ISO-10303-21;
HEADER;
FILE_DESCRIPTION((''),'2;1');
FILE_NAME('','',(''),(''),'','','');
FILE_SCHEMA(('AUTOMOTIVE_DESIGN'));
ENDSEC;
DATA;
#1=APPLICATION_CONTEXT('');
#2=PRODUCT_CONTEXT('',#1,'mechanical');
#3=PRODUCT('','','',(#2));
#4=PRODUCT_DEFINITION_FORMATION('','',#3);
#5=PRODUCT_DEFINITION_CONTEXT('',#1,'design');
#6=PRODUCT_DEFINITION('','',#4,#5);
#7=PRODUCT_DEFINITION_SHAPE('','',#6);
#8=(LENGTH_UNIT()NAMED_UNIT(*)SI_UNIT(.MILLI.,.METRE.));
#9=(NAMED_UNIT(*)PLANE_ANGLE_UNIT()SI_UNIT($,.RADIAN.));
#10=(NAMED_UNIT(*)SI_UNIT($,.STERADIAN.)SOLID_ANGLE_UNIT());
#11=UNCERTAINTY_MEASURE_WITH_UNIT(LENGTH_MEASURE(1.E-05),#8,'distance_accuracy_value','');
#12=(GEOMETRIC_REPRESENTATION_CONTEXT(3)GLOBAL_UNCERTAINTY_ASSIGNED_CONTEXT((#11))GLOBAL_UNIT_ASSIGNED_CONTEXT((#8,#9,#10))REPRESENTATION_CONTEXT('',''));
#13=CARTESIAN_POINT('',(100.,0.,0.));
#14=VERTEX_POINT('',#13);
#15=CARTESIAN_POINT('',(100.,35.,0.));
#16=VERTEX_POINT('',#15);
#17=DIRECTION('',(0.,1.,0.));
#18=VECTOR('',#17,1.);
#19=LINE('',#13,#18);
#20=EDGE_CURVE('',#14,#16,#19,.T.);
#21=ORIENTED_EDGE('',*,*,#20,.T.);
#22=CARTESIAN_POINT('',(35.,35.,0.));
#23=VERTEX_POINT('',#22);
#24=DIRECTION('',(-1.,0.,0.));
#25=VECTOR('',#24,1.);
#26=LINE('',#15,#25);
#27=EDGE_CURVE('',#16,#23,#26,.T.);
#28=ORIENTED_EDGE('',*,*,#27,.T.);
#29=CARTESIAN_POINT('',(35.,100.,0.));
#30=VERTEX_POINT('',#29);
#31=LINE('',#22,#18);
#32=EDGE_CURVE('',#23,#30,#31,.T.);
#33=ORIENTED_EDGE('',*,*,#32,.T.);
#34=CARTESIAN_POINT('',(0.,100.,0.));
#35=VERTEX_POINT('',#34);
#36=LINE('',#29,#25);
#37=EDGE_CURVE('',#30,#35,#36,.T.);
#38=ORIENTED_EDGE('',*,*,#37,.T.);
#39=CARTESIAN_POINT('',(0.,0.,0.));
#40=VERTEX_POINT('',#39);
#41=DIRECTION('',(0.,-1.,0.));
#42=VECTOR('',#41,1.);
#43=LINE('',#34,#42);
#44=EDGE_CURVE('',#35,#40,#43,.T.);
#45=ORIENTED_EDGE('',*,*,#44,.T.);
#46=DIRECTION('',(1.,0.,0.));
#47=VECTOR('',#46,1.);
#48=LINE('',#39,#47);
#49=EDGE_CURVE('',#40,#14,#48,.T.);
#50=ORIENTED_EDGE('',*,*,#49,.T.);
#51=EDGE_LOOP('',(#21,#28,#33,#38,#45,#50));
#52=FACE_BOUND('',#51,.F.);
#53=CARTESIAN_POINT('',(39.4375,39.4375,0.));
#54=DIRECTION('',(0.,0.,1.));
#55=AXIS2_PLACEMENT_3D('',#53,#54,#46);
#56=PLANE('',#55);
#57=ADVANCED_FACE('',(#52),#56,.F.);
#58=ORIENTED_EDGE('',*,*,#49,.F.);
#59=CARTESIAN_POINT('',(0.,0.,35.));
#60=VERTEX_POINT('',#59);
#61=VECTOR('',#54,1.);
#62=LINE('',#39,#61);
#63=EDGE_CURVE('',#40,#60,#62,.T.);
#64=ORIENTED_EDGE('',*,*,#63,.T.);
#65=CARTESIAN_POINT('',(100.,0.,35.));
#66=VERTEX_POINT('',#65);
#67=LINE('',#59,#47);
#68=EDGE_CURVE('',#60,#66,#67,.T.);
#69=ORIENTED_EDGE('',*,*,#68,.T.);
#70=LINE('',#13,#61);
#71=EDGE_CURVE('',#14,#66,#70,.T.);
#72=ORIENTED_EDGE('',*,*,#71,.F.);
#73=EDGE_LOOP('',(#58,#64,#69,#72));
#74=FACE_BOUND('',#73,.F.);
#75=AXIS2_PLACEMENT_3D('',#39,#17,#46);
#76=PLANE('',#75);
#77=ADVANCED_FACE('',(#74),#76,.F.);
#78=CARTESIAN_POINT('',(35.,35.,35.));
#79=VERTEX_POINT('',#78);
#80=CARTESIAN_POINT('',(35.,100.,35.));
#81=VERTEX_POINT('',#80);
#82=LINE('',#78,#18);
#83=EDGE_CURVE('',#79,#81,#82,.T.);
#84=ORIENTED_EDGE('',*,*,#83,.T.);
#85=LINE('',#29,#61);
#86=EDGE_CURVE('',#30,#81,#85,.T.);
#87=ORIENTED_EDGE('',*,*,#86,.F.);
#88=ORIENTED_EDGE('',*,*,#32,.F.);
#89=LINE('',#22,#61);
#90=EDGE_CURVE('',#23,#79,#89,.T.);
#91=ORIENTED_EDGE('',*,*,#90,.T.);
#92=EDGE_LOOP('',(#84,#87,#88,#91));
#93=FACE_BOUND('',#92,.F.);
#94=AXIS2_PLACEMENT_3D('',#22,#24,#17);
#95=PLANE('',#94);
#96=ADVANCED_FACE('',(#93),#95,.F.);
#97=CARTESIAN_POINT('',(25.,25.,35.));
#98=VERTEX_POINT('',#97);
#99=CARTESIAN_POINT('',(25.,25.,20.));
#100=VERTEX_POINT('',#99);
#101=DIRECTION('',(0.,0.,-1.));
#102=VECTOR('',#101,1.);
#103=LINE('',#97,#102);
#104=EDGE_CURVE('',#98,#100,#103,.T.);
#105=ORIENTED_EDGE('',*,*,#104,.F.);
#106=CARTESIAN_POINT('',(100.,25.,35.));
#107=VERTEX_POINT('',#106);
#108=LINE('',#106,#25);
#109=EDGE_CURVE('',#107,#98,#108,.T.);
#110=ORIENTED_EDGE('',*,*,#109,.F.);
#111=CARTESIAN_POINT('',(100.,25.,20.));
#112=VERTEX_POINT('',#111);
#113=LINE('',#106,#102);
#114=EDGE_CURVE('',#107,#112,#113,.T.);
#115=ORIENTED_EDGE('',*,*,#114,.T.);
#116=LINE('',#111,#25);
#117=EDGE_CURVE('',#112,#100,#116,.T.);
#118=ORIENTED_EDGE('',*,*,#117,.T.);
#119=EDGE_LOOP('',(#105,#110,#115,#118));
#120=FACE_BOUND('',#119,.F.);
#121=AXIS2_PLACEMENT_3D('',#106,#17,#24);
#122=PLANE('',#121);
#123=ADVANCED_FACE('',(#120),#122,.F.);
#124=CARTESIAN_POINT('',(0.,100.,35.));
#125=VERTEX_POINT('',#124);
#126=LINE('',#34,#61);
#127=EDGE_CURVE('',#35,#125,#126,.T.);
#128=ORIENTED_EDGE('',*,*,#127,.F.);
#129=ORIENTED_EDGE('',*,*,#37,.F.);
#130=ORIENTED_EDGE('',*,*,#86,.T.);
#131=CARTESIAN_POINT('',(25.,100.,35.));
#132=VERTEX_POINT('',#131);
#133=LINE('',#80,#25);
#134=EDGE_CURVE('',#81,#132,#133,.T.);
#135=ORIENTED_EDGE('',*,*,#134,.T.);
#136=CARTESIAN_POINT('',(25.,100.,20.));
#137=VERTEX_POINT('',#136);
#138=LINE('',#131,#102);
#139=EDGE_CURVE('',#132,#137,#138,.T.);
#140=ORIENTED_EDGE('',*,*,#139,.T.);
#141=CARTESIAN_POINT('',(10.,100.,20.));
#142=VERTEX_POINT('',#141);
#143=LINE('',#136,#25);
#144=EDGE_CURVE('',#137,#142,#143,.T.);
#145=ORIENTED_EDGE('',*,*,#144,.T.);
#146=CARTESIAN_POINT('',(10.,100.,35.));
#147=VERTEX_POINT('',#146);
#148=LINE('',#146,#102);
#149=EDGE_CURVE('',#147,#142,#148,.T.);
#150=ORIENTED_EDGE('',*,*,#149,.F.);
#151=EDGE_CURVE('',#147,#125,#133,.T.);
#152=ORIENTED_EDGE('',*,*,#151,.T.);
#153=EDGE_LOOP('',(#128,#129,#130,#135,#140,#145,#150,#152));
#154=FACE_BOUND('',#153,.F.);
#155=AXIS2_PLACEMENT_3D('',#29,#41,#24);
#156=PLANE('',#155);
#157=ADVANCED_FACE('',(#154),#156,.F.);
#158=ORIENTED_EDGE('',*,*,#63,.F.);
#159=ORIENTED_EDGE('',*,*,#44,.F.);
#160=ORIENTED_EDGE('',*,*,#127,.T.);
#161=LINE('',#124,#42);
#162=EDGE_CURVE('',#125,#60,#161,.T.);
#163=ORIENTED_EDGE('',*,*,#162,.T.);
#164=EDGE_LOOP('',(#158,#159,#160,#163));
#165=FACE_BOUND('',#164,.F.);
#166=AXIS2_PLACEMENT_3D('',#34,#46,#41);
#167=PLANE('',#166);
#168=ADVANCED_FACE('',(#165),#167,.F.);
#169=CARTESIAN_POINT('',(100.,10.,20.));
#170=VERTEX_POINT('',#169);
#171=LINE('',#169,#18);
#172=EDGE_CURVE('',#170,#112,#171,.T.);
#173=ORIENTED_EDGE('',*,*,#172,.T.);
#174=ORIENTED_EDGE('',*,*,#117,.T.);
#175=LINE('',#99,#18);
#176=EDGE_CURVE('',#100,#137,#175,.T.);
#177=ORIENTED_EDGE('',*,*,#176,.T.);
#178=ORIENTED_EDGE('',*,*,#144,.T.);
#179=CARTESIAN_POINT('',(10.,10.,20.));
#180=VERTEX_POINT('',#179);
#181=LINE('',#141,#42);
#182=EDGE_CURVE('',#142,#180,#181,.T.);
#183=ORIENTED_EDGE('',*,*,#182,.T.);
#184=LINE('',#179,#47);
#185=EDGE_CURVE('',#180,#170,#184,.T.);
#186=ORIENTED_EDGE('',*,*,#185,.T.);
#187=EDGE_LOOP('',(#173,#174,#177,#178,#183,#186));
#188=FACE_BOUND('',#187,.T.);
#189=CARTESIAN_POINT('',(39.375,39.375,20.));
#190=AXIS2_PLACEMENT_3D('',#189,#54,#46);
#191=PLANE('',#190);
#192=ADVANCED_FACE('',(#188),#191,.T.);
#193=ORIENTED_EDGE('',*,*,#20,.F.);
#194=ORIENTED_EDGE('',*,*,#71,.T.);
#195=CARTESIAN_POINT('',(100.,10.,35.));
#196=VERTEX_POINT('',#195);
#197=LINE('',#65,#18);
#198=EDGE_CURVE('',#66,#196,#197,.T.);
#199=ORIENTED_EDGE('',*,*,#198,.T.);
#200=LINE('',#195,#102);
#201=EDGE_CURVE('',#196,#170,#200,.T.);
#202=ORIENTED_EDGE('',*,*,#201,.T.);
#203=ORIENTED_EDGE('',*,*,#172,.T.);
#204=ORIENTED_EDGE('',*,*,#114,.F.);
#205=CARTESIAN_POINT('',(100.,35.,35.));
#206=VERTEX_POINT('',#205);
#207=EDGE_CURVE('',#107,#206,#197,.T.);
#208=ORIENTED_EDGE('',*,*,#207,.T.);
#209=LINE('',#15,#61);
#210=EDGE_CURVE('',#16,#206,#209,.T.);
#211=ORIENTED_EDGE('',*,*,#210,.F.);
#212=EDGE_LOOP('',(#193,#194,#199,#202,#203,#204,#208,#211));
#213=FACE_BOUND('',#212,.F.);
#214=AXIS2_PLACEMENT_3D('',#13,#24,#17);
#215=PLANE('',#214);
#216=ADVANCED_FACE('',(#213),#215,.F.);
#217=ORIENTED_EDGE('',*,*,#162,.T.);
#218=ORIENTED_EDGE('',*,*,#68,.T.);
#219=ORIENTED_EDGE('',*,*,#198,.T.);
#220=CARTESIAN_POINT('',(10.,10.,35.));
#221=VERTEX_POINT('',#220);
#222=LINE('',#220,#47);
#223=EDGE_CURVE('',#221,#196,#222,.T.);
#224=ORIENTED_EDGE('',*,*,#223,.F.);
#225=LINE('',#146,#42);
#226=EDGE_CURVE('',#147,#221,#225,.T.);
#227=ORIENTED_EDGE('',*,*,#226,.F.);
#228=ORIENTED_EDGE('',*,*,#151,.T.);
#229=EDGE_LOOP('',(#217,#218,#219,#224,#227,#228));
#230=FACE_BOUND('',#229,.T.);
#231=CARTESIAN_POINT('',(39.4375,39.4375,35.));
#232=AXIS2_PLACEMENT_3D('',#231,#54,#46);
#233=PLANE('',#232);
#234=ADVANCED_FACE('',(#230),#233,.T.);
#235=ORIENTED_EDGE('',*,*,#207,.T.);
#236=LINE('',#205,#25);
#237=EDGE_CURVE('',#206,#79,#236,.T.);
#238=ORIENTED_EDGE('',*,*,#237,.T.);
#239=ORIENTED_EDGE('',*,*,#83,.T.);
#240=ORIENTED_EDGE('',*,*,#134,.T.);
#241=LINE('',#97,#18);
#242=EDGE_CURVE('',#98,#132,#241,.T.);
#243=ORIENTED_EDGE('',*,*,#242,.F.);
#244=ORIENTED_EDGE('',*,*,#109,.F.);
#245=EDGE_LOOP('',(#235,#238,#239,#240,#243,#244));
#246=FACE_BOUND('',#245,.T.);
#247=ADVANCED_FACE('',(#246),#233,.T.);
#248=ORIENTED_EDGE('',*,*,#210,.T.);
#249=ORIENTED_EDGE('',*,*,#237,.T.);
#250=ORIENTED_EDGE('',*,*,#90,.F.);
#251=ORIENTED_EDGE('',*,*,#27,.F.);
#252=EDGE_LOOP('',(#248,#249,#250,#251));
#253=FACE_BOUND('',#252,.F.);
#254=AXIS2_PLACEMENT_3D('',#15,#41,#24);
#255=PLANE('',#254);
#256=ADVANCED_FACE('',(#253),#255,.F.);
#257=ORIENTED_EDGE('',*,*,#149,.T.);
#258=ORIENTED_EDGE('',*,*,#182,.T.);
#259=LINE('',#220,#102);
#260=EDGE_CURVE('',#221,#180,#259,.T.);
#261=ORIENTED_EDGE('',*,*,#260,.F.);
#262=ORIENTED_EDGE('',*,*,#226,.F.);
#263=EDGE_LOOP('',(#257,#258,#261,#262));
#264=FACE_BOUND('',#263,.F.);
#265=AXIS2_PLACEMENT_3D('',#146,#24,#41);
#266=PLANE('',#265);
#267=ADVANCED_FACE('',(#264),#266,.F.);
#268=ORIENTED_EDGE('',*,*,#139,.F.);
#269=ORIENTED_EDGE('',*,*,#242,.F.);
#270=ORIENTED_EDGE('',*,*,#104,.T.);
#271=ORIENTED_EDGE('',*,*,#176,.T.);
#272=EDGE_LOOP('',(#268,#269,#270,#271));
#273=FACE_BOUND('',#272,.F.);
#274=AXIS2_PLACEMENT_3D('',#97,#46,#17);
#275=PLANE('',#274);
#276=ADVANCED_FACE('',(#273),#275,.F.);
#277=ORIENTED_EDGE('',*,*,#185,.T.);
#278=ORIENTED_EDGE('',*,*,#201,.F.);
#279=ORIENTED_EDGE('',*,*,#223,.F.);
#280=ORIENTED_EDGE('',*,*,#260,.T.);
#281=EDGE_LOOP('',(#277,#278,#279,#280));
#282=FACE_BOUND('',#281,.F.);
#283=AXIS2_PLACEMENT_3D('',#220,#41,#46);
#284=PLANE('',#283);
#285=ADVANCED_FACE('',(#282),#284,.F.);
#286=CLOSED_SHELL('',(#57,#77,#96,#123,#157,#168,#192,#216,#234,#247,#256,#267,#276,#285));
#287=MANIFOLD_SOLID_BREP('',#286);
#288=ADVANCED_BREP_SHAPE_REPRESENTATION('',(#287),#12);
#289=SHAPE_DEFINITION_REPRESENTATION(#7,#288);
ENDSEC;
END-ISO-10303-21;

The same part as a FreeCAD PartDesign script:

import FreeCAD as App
import Part
import Sketcher
from FreeCAD import Vector
Q = App.Units.Quantity


def add_polygon(sketch, points):
    """Adds a closed chain of lines whose ends are joined by coincident constraints."""
    first, n = sketch.GeometryCount, len(points)
    for a, b in zip(points, points[1:] + points[:1]):
        sketch.addGeometry(Part.LineSegment(App.Vector(*a, 0), App.Vector(*b, 0)), False)
    for i in range(n):
        sketch.addConstraint(Sketcher.Constraint("Coincident", first + i, 2, first + (i + 1) % n, 1))

doc = App.newDocument("Part")
body = doc.addObject("PartDesign::Body", "Body")

# Sketch on XY plane
sketch1 = body.newObject("Sketcher::SketchObject", "Sketch")
sketch1.AttachmentSupport = (doc.getObject("XY_Plane"), [""])
sketch1.MapMode = "FlatFace"
add_polygon(sketch1, [(35, 100), (0, 100), (0, 0), (100, 0), (100, 35), (35, 35)])  # lines 0-5
sketch1.addConstraint([
    Sketcher.Constraint("Horizontal", 0),
    Sketcher.Constraint("Vertical", 1),
    Sketcher.Constraint("Horizontal", 2),
    Sketcher.Constraint("Vertical", 3),
    Sketcher.Constraint("Horizontal", 4),
    Sketcher.Constraint("Vertical", 5),
    Sketcher.Constraint("Coincident", 1, 2, -1, 1),
    Sketcher.Constraint("Equal", 2, 1),
    Sketcher.Constraint("Equal", 0, 3),
    Sketcher.Constraint("DistanceX", 0, 2, 0, 1, Q("35 mm")),
    Sketcher.Constraint("DistanceX", 2, 1, 2, 2, Q("100 mm")),
])
pad1 = body.newObject("PartDesign::Pad", "Pad")
pad1.Profile = sketch1
pad1.Length = 35

# Sketch on XY plane
sketch2 = body.newObject("Sketcher::SketchObject", "Sketch001")
sketch2.AttachmentSupport = (doc.getObject("XY_Plane"), [""])
sketch2.MapMode = "FlatFace"
sketch2.AttachmentOffset = App.Placement(Vector(0, 0, 35), App.Rotation())
add_polygon(sketch2, [(25, 100), (10, 100), (10, 10), (100, 10), (100, 25), (25, 25)])  # lines 0-5
sketch2.addConstraint([
    Sketcher.Constraint("Horizontal", 0),
    Sketcher.Constraint("Vertical", 1),
    Sketcher.Constraint("Horizontal", 2),
    Sketcher.Constraint("Vertical", 3),
    Sketcher.Constraint("Horizontal", 4),
    Sketcher.Constraint("Vertical", 5),
    Sketcher.Constraint("Equal", 2, 1),
    Sketcher.Constraint("Equal", 0, 3),
    Sketcher.Constraint("DistanceX", 0, 2, 0, 1, Q("15 mm")),
    Sketcher.Constraint("DistanceX", 2, 1, 2, 2, Q("90 mm")),
    Sketcher.Constraint("DistanceX", -1, 1, 0, 2, Q("10 mm")),
    Sketcher.Constraint("DistanceY", -1, 1, 0, 2, Q("100 mm")),
])
pocket1 = body.newObject("PartDesign::Pocket", "Pocket")
pocket1.Profile = sketch2
pocket1.Length = 15

doc.recompute()
